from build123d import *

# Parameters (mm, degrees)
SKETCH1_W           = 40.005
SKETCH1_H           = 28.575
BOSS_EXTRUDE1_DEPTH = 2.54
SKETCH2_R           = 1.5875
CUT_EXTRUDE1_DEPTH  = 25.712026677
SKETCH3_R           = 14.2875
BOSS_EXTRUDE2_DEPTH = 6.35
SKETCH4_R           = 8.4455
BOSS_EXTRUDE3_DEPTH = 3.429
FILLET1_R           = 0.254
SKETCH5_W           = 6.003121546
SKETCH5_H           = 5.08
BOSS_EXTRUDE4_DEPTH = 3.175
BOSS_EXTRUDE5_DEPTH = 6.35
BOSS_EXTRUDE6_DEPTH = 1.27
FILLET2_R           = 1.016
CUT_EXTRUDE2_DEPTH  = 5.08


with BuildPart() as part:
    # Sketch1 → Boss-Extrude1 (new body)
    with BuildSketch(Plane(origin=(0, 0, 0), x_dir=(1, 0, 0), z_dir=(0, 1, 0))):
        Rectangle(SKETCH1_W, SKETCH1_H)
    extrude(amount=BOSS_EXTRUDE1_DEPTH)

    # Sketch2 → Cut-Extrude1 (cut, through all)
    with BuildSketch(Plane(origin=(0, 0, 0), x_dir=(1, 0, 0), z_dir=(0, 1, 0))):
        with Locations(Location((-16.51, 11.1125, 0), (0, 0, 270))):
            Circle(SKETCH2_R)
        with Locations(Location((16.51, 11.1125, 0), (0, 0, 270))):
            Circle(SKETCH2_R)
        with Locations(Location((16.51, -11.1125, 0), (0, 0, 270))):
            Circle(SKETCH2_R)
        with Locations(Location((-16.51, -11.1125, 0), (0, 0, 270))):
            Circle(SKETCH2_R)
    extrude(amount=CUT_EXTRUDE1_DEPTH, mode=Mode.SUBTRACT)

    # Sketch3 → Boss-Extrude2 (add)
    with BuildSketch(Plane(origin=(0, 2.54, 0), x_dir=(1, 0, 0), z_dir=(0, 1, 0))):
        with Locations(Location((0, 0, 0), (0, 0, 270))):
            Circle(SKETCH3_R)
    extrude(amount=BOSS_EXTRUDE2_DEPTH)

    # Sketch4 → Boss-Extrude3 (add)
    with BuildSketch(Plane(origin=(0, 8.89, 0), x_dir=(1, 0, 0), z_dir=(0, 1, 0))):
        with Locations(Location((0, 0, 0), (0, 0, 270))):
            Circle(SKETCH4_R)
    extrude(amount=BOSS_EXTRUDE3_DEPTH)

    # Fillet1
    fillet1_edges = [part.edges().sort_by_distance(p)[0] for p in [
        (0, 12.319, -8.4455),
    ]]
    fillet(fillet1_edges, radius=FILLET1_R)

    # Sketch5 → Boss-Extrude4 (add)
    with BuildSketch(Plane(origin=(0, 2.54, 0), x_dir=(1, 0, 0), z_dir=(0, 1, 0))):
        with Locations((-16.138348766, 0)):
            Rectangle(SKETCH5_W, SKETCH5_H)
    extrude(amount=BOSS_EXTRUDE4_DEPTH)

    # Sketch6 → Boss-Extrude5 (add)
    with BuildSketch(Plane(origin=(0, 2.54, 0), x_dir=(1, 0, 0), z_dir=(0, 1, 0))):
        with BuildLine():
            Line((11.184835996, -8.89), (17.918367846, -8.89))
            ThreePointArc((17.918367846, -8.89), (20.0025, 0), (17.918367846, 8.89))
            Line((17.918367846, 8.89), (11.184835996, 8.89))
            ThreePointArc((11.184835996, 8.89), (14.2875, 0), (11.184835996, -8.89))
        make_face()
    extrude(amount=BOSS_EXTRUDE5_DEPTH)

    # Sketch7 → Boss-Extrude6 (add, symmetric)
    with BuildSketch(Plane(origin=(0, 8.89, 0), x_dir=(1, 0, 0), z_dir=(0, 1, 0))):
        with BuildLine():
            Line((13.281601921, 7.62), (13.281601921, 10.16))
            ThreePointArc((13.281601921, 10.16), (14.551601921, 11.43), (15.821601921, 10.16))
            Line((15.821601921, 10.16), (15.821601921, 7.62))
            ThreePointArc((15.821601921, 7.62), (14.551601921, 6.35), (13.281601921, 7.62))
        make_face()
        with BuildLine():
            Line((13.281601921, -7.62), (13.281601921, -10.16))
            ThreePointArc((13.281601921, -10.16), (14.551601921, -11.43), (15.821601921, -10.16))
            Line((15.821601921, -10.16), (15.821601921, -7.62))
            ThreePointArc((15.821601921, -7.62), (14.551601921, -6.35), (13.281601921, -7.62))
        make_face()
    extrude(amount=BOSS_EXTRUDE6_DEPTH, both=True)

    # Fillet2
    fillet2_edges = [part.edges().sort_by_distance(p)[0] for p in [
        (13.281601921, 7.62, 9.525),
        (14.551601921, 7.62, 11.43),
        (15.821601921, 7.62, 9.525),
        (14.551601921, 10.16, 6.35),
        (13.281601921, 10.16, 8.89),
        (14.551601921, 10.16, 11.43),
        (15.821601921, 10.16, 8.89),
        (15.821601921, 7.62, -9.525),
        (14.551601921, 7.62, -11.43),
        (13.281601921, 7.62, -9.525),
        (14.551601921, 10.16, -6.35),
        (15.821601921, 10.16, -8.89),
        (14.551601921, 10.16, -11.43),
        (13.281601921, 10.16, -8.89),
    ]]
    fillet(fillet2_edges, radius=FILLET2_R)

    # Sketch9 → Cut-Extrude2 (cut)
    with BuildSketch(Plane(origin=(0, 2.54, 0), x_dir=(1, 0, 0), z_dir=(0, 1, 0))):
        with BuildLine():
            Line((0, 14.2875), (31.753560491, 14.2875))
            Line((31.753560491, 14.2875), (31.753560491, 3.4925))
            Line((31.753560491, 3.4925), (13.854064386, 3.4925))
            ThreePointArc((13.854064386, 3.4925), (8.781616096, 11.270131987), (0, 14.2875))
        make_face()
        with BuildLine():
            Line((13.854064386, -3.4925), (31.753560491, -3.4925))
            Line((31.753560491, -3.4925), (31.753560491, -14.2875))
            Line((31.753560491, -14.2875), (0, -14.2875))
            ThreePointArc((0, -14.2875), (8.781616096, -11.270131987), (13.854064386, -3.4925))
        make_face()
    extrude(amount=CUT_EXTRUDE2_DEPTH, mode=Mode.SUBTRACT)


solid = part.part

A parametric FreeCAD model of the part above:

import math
import FreeCAD as App
import Part
import Sketcher
from FreeCAD import Vector
Q = App.Units.Quantity


def edges_at(feature, points):
    """Names of the edges that pass closest to the given points."""
    edges = feature.Shape.Edges
    near = lambda p: min(range(len(edges)), key=lambda i: edges[i].distToShape(Part.Vertex(*p))[0])
    return sorted({f"Edge{near(p) + 1}" for p in points})


def add_polygon(sketch, points):
    """Adds a closed chain of lines whose ends are joined by coincident constraints."""
    first, n = sketch.GeometryCount, len(points)
    for a, b in zip(points, points[1:] + points[:1]):
        sketch.addGeometry(Part.LineSegment(App.Vector(*a, 0), App.Vector(*b, 0)), False)
    for i in range(n):
        sketch.addConstraint(Sketcher.Constraint("Coincident", first + i, 2, first + (i + 1) % n, 1))

doc = App.newDocument("Part")
body = doc.addObject("PartDesign::Body", "Body")

sketch1 = doc.addObject("Sketcher::SketchObject", "Sketch")
body.addObject(sketch1)
sketch1.AttachmentSupport = (doc.XZ_Plane, [""])
sketch1.MapMode = "FlatFace"
add_polygon(sketch1, [(-20, -14), (-20, 14), (20, 14), (20, -14)])
sketch1.addConstraint([
    Sketcher.Constraint("Vertical", 0),
    Sketcher.Constraint("Horizontal", 1),
    Sketcher.Constraint("Vertical", 2),
    Sketcher.Constraint("Horizontal", 3),
    Sketcher.Constraint("Symmetric", 0, 2, 2, 2, -1, 1),
    Sketcher.Constraint("DistanceX", 1, 1, 1, 2, Q("1.575 in")),
    Sketcher.Constraint("DistanceY", 0, 1, 0, 2, Q("1.125 in")),
])
pad1 = doc.addObject("PartDesign::Pad", "Pad")
body.addObject(pad1)
pad1.Profile = sketch1
pad1.Length = Q("0.1 in")
pad1.Reversed = True

sketch2 = doc.addObject("Sketcher::SketchObject", "Sketch001")
body.addObject(sketch2)
sketch2.AttachmentSupport = (doc.XZ_Plane, [""])
sketch2.MapMode = "FlatFace"
sketch2.addGeometry([
    Part.Circle(Vector(-16.5, -11.1, 0), Vector(0, 0, 1), 1.6),
    Part.Circle(Vector(16.5, -11.1, 0), Vector(0, 0, 1), 1.6),
    Part.Circle(Vector(16.5, 11.1, 0), Vector(0, 0, 1), 1.6),
    Part.Circle(Vector(-16.5, 11.1, 0), Vector(0, 0, 1), 1.6),
], False)
sketch2.addConstraint([
    Sketcher.Constraint("Equal", 0, 1),
    Sketcher.Constraint("Equal", 1, 2),
    Sketcher.Constraint("Equal", 2, 3),
    Sketcher.Constraint("Symmetric", 0, 3, 2, 3, -1, 1),
    Sketcher.Constraint("Symmetric", 1, 3, 3, 3, -1, 1),
    Sketcher.Constraint("Symmetric", 0, 3, 1, 3, -2),
    Sketcher.Constraint("Diameter", 0, Q("0.125 in")),
    Sketcher.Constraint("DistanceX", 0, 3, 1, 3, Q("1.3 in")),
    Sketcher.Constraint("DistanceY", 0, 3, -1, 1, Q("0.4375 in")),
])
pocket1 = doc.addObject("PartDesign::Pocket", "Pocket")
body.addObject(pocket1)
pocket1.Profile = sketch2
pocket1.Type = "ThroughAll"

sketch3 = doc.addObject("Sketcher::SketchObject", "Sketch002")
body.addObject(sketch3)
sketch3.AttachmentSupport = (doc.XZ_Plane, [""])
sketch3.MapMode = "FlatFace"
sketch3.AttachmentOffset = App.Placement(Vector(0, 0, -0.1 * 25.4), App.Rotation())
sketch3.addGeometry(Part.Circle(Vector(0, 0, 0), Vector(0, 0, 1), 14), False)
sketch3.addConstraint([
    Sketcher.Constraint("Coincident", 0, 3, -1, 1),
    Sketcher.Constraint("Diameter", 0, Q("1.125 in")),
])
pad2 = doc.addObject("PartDesign::Pad", "Pad001")
body.addObject(pad2)
pad2.Profile = sketch3
pad2.Length = Q("0.25 in")
pad2.Reversed = True

sketch4 = doc.addObject("Sketcher::SketchObject", "Sketch003")
body.addObject(sketch4)
sketch4.AttachmentSupport = (doc.XZ_Plane, [""])
sketch4.MapMode = "FlatFace"
sketch4.AttachmentOffset = App.Placement(Vector(0, 0, -0.35 * 25.4), App.Rotation())
sketch4.addGeometry(Part.Circle(Vector(0, 0, 0), Vector(0, 0, 1), 8), False)
sketch4.addConstraint([
    Sketcher.Constraint("Coincident", 0, 3, -1, 1),
    Sketcher.Constraint("Diameter", 0, Q("0.665 in")),
])
pad3 = doc.addObject("PartDesign::Pad", "Pad002")
body.addObject(pad3)
pad3.Profile = sketch4
pad3.Length = Q("0.135 in")
pad3.Reversed = True
doc.recompute()

fillet = doc.addObject("PartDesign::Fillet", "Fillet")
body.addObject(fillet)
fillet.Base = (pad3, edges_at(pad3, [(0, 12.319, -8.445)]))
fillet.Radius = Q("0.01 in")

sketch5 = doc.addObject("Sketcher::SketchObject", "Sketch004")
body.addObject(sketch5)
sketch5.AttachmentSupport = (doc.XZ_Plane, [""])
sketch5.MapMode = "FlatFace"
sketch5.AttachmentOffset = App.Placement(Vector(0, 0, -0.1 * 25.4), App.Rotation())
add_polygon(sketch5, [(-19, -3), (-19, 3), (-13, 3), (-13, -3)])
sketch5.addConstraint([
    Sketcher.Constraint("Vertical", 0),
    Sketcher.Constraint("Horizontal", 1),
    Sketcher.Constraint("Vertical", 2),
    Sketcher.Constraint("Horizontal", 3),
    Sketcher.Constraint("DistanceY", 0, 1, 0, 2, Q("0.2 in")),
    Sketcher.Constraint("DistanceY", -1, 1, 0, 2, Q("0.1 in")),
    Sketcher.Constraint("DistanceX", 1, 1, 1, 2, 6.003122),
    Sketcher.Constraint("DistanceX", 0, 2, -1, 1, 19.13991),
])
pad4 = doc.addObject("PartDesign::Pad", "Pad003")
body.addObject(pad4)
pad4.Profile = sketch5
pad4.Length = Q("0.125 in")
pad4.Reversed = True

sketch6 = doc.addObject("Sketcher::SketchObject", "Sketch005")
body.addObject(sketch6)
sketch6.AttachmentSupport = (doc.XZ_Plane, [""])
sketch6.MapMode = "FlatFace"
sketch6.AttachmentOffset = App.Placement(Vector(0, 0, -0.1 * 25.4), App.Rotation())
sketch6.addGeometry([
    Part.LineSegment(Vector(11, 9, 0), Vector(18, 9, 0)),
    Part.ArcOfCircle(Part.Circle(Vector(0, 0, 0), Vector(0, 0, 1), 20), math.radians(-26), math.radians(26)),
    Part.LineSegment(Vector(18, -9, 0), Vector(11, -9, 0)),
    Part.ArcOfCircle(Part.Circle(Vector(0, 0, 0), Vector(0, 0, 1), 14), math.radians(-38), math.radians(38)),
], False)
sketch6.addConstraint([
    Sketcher.Constraint("Coincident", 0, 2, 1, 2),
    Sketcher.Constraint("Coincident", 1, 1, 2, 1),
    Sketcher.Constraint("Coincident", 2, 2, 3, 1),
    Sketcher.Constraint("Coincident", 3, 2, 0, 1),
    Sketcher.Constraint("Horizontal", 0),
    Sketcher.Constraint("Horizontal", 2),
    Sketcher.Constraint("Coincident", 1, 3, -1, 1),
    Sketcher.Constraint("Coincident", 3, 3, -1, 1),
    Sketcher.Constraint("Vertical", 0, 2, 1, 1),
    Sketcher.Constraint("Radius", 3, Q("0.5625 in")),
    Sketcher.Constraint("Radius", 1, Q("0.7875 in")),
    Sketcher.Constraint("DistanceY", 1, 1, 0, 2, Q("0.7 in")),
])
pad5 = doc.addObject("PartDesign::Pad", "Pad004")
body.addObject(pad5)
pad5.Profile = sketch6
pad5.Length = Q("0.25 in")
pad5.Reversed = True

sketch7 = doc.addObject("Sketcher::SketchObject", "Sketch006")
body.addObject(sketch7)
sketch7.AttachmentSupport = (doc.XZ_Plane, [""])
sketch7.MapMode = "FlatFace"
sketch7.AttachmentOffset = App.Placement(Vector(0, 0, -0.35 * 25.4), App.Rotation())
sketch7.addGeometry([
    Part.LineSegment(Vector(13.3, -10.2, 0), Vector(13.3, -7.6, 0)),
    Part.ArcOfCircle(Part.Circle(Vector(14.6, -7.6, 0), Vector(0, 0, 1), 1.3), math.radians(0), math.radians(180)),
    Part.LineSegment(Vector(15.8, -7.6, 0), Vector(15.8, -10.2, 0)),
    Part.ArcOfCircle(Part.Circle(Vector(14.6, -10.2, 0), Vector(0, 0, 1), 1.3), math.radians(180), math.radians(360)),
    Part.LineSegment(Vector(13.3, 7.6, 0), Vector(13.3, 10.2, 0)),
    Part.ArcOfCircle(Part.Circle(Vector(14.6, 10.2, 0), Vector(0, 0, 1), 1.3), math.radians(0), math.radians(180)),
    Part.LineSegment(Vector(15.8, 10.2, 0), Vector(15.8, 7.6, 0)),
    Part.ArcOfCircle(Part.Circle(Vector(14.6, 7.6, 0), Vector(0, 0, 1), 1.3), math.radians(180), math.radians(360)),
], False)
sketch7.addConstraint([
    Sketcher.Constraint("Tangent", 0, 2, 1, 2),
    Sketcher.Constraint("Tangent", 1, 1, 2, 1),
    Sketcher.Constraint("Tangent", 2, 2, 3, 2),
    Sketcher.Constraint("Tangent", 3, 1, 0, 1),
    Sketcher.Constraint("Tangent", 4, 2, 5, 2),
    Sketcher.Constraint("Tangent", 5, 1, 6, 1),
    Sketcher.Constraint("Tangent", 6, 2, 7, 2),
    Sketcher.Constraint("Tangent", 7, 1, 4, 1),
    Sketcher.Constraint("Vertical", 0),
    Sketcher.Constraint("Vertical", 2),
    Sketcher.Constraint("Vertical", 4),
    Sketcher.Constraint("Vertical", 6),
    Sketcher.Constraint("Equal", 3, 5),
    Sketcher.Constraint("Symmetric", 3, 3, 5, 3, -1),
    Sketcher.Constraint("Equal", 2, 4),
    Sketcher.Constraint("Radius", 1, Q("0.05 in")),
    Sketcher.Constraint("DistanceY", 0, 1, 0, 2, Q("0.1 in")),
    Sketcher.Constraint("DistanceY", 1, 3, -1, 1, Q("0.3 in")),
    Sketcher.Constraint("DistanceX", -1, 1, 1, 3, 14.551602),
])
pad6 = doc.addObject("PartDesign::Pad", "Pad005")
body.addObject(pad6)
pad6.Profile = sketch7
pad6.Length = Q("0.1 in")
pad6.Midplane = True
doc.recompute()

fillet2 = doc.addObject("PartDesign::Fillet", "Fillet001")
body.addObject(fillet2)
fillet2.Base = (pad6, edges_at(pad6, [
    (13.282, 7.62, 9.525),
    (14.552, 7.62, 11.43),
    (15.822, 7.62, 9.525),
    (14.552, 10.16, 6.35),
    (13.282, 10.16, 8.89),
    (14.552, 10.16, 11.43),
    (15.822, 10.16, 8.89),
    (15.822, 7.62, -9.525),
    (14.552, 7.62, -11.43),
    (13.282, 7.62, -9.525),
    (14.552, 10.16, -6.35),
    (15.822, 10.16, -8.89),
    (14.552, 10.16, -11.43),
    (13.282, 10.16, -8.89),
]))
fillet2.Radius = Q("0.04 in")

sketch8 = doc.addObject("Sketcher::SketchObject", "Sketch007")
body.addObject(sketch8)
sketch8.AttachmentSupport = (doc.XZ_Plane, [""])
sketch8.MapMode = "FlatFace"
sketch8.AttachmentOffset = App.Placement(Vector(0, 0, -0.1 * 25.4), App.Rotation())
sketch8.addGeometry([
    Part.LineSegment(Vector(32, -14, 0), Vector(0, -14, 0)),
    Part.ArcOfCircle(Part.Circle(Vector(0, 0, 0), Vector(0, 0, 1), 14), math.radians(-90), math.radians(-14)),
    Part.LineSegment(Vector(14, -3, 0), Vector(32, -3, 0)),
    Part.LineSegment(Vector(32, -3, 0), Vector(32, -14, 0)),
    Part.LineSegment(Vector(32, 3, 0), Vector(14, 3, 0)),
    Part.ArcOfCircle(Part.Circle(Vector(0, 0, 0), Vector(0, 0, 1), 14), math.radians(14), math.radians(90)),
    Part.LineSegment(Vector(0, 14, 0), Vector(32, 14, 0)),
    Part.LineSegment(Vector(32, 14, 0), Vector(32, 3, 0)),
], False)
sketch8.addConstraint([
    Sketcher.Constraint("Tangent", 0, 2, 1, 1),
    Sketcher.Constraint("Coincident", 1, 2, 2, 1),
    Sketcher.Constraint("Coincident", 2, 2, 3, 1),
    Sketcher.Constraint("Coincident", 3, 2, 0, 1),
    Sketcher.Constraint("Coincident", 4, 2, 5, 1),
    Sketcher.Constraint("Tangent", 5, 2, 6, 1),
    Sketcher.Constraint("Coincident", 6, 2, 7, 1),
    Sketcher.Constraint("Coincident", 7, 2, 4, 1),
    Sketcher.Constraint("Horizontal", 0),
    Sketcher.Constraint("Horizontal", 2),
    Sketcher.Constraint("Vertical", 3),
    Sketcher.Constraint("Horizontal", 4),
    Sketcher.Constraint("Horizontal", 6),
    Sketcher.Constraint("Vertical", 7),
    Sketcher.Constraint("Coincident", 1, 3, -1, 1),
    Sketcher.Constraint("Coincident", 5, 3, -1, 1),
    Sketcher.Constraint("Equal", 1, 5),
    Sketcher.Constraint("Symmetric", 2, 2, 7, 2, -1),
    Sketcher.Constraint("Radius", 1, Q("0.5625 in")),
    Sketcher.Constraint("DistanceY", 0, 2, 4, 2, Q("0.7 in")),
    Sketcher.Constraint("DistanceX", 0, 2, 0, 1, 31.75356),
])
pocket2 = doc.addObject("PartDesign::Pocket", "Pocket001")
body.addObject(pocket2)
pocket2.Profile = sketch8
pocket2.Length = Q("0.2 in")

doc.recompute()
